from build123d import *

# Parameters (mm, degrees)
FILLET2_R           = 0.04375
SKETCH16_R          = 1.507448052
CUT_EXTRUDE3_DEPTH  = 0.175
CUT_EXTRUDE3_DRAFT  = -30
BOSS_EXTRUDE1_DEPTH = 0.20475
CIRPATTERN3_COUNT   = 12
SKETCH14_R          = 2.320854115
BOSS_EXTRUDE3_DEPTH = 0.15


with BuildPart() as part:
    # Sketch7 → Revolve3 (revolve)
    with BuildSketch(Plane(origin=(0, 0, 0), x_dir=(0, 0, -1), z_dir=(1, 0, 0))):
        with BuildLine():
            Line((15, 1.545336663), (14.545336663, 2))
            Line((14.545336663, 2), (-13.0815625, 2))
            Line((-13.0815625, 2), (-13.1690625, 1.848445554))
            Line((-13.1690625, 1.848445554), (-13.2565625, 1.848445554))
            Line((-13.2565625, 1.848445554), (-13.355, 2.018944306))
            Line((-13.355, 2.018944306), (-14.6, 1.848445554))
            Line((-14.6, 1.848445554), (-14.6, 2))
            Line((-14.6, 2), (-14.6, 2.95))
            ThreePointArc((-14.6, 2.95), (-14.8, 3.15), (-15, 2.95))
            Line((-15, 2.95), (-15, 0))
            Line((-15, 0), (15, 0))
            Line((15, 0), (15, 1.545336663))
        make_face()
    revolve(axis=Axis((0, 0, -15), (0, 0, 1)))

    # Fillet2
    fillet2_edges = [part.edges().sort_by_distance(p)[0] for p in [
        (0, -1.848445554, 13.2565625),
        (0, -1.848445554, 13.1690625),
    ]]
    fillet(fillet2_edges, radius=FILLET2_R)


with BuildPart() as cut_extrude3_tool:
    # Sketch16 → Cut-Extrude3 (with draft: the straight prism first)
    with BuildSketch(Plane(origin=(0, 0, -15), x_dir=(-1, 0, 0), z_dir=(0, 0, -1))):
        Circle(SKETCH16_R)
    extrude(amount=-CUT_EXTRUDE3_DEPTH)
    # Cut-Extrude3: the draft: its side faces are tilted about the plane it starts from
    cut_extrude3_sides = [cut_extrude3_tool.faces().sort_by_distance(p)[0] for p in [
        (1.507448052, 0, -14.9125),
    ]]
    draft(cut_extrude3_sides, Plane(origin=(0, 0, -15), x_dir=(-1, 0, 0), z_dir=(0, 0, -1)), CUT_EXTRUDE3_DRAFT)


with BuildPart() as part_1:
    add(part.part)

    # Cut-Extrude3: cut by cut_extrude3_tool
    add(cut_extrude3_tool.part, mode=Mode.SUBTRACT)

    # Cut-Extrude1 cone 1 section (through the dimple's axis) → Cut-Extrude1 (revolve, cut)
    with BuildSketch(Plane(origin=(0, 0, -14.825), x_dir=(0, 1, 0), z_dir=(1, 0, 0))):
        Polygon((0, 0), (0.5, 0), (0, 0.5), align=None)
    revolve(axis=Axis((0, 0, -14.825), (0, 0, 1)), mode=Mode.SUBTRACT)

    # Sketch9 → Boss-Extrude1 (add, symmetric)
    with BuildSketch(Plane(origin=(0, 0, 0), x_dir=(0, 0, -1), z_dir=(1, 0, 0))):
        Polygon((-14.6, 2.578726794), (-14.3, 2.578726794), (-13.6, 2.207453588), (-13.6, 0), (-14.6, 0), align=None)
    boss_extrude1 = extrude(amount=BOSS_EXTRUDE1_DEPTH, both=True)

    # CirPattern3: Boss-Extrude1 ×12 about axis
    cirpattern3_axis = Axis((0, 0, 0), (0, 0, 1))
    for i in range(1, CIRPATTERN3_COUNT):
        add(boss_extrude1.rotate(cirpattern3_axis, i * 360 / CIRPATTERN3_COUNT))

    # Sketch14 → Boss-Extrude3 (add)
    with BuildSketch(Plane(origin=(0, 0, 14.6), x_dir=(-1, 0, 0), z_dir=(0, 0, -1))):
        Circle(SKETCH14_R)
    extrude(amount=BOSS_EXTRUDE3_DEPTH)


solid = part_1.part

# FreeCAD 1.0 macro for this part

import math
import FreeCAD as App
import Part
import Sketcher
Q = App.Units.Quantity


def edges_at(feature, points):
    """Names of the edges that pass closest to the given points."""
    edges = feature.Shape.Edges
    near = lambda p: min(range(len(edges)), key=lambda i: edges[i].distToShape(Part.Vertex(*p))[0])
    return sorted({f"Edge{near(p) + 1}" for p in points})


def faces_at(feature, points):
    """Names of the faces that lie closest to the given points."""
    faces = feature.Shape.Faces
    near = lambda p: min(range(len(faces)), key=lambda i: faces[i].distToShape(Part.Vertex(*p))[0])
    return sorted({f"Face{near(p) + 1}" for p in points})

doc = App.newDocument("Part")
body = doc.addObject("PartDesign::Body", "Body")

# Sketch on YZ plane
sketch1 = doc.addObject("Sketcher::SketchObject", "Sketch")
body.addObject(sketch1)
sketch1.AttachmentSupport = (doc.YZ_Plane, [""])
sketch1.MapMode = "FlatFace"
sketch1.addGeometry([
    Part.LineSegment(App.Vector(1.55, -15, 0), App.Vector(2, -14.55, 0)),  # 0
    Part.LineSegment(App.Vector(2, -14.55, 0), App.Vector(2, 13.08, 0)),  # 1
    Part.LineSegment(App.Vector(2, 13.08, 0), App.Vector(1.85, 13.17, 0)),  # 2
    Part.LineSegment(App.Vector(1.85, 13.17, 0), App.Vector(1.85, 13.26, 0)),  # 3
    Part.LineSegment(App.Vector(1.85, 13.26, 0), App.Vector(2.02, 13.36, 0)),  # 4
    Part.LineSegment(App.Vector(2.02, 13.36, 0), App.Vector(1.85, 14.6, 0)),  # 5
    Part.LineSegment(App.Vector(1.85, 14.6, 0), App.Vector(2.95, 14.6, 0)),  # 6
    Part.ArcOfCircle(Part.Circle(App.Vector(2.95, 14.8, 0), App.Vector(0, 0, 1), 0.2), math.radians(-90), math.radians(90)),  # 7
    Part.LineSegment(App.Vector(2.95, 15, 0), App.Vector(0, 15, 0)),  # 8
    Part.LineSegment(App.Vector(0, 15, 0), App.Vector(0, -15, 0)),  # 9
    Part.LineSegment(App.Vector(0, -15, 0), App.Vector(1.55, -15, 0)),  # 10
], False)
sketch1.addConstraint([
    Sketcher.Constraint("Coincident", 0, 2, 1, 1),
    Sketcher.Constraint("Coincident", 1, 2, 2, 1),
    Sketcher.Constraint("Coincident", 2, 2, 3, 1),
    Sketcher.Constraint("Coincident", 3, 2, 4, 1),
    Sketcher.Constraint("Coincident", 4, 2, 5, 1),
    Sketcher.Constraint("Coincident", 5, 2, 6, 1),
    Sketcher.Constraint("Tangent", 6, 2, 7, 1),
    Sketcher.Constraint("Tangent", 7, 2, 8, 1),
    Sketcher.Constraint("Coincident", 8, 2, 9, 1),
    Sketcher.Constraint("Coincident", 9, 2, 10, 1),
    Sketcher.Constraint("Coincident", 10, 2, 0, 1),
    Sketcher.Constraint("Vertical", 1),
    Sketcher.Constraint("Vertical", 3),
    Sketcher.Constraint("Horizontal", 6),
    Sketcher.Constraint("Horizontal", 8),
    Sketcher.Constraint("Vertical", 9),
    Sketcher.Constraint("Horizontal", 10),
    Sketcher.Constraint("Symmetric", 8, 2, 9, 2, -1, 1),
    Sketcher.Constraint("Vertical", 3, 2, 5, 2),
    Sketcher.Constraint("Radius", 7, 0.2),
    Sketcher.Constraint("DistanceY", 9, 2, 9, 1, 30.0),
    Sketcher.Constraint("Angle", 0, Q("45 deg")),
    Sketcher.Constraint("Angle", 2, Q("150 deg")),
    Sketcher.Constraint("Angle", 4, Q("30 deg")),
    Sketcher.Constraint("DistanceX", -1, 1, 0, 2, 2.0),
    Sketcher.Constraint("DistanceX", 8, 2, 8, 1, 2.95),
    Sketcher.Constraint("Distance", 2, 0.175),
    Sketcher.Constraint("DistanceY", 1, 1, 1, 2, 27.626899),
    Sketcher.Constraint("DistanceY", 3, 1, 3, 2, 0.0875),
    Sketcher.Constraint("DistanceY", -1, 1, 4, 2, 13.355),
    Sketcher.Constraint("DistanceX", 3, 2, 4, 2, 0.170499),
])
revolution = doc.addObject("PartDesign::Revolution", "Revolution")
body.addObject(revolution)
revolution.Profile = sketch1
revolution.ReferenceAxis = (sketch1, ["V_Axis"])
revolution.Angle = 360
doc.recompute()

fillet = doc.addObject("PartDesign::Fillet", "Fillet")
body.addObject(fillet)
fillet.Base = (revolution, edges_at(revolution, [(0, -1.848, 13.257), (0, -1.848, 13.169)]))
fillet.Radius = 0.04375
body2 = doc.addObject("PartDesign::Body", "Body001")

# Sketch on XY plane
sketch2 = doc.addObject("Sketcher::SketchObject", "Sketch001")
body2.addObject(sketch2)
sketch2.AttachmentSupport = (doc.getObject("XY_Plane001"), [""])
sketch2.MapMode = "FlatFace"
sketch2.AttachmentOffset = App.Placement(App.Vector(0, 0, -15), App.Rotation())
sketch2.addGeometry(Part.Circle(App.Vector(0, 0, 0), App.Vector(0, 0, 1), 1.5), False)
sketch2.addConstraint([
    Sketcher.Constraint("Coincident", 0, 3, -1, 1),
    Sketcher.Constraint("Diameter", 0, 3.014896),
])
pad1 = doc.addObject("PartDesign::Pad", "Pad")
body2.addObject(pad1)
pad1.Profile = sketch2
pad1.Length = 0.175
doc.recompute()

datumplane = doc.addObject("PartDesign::Plane", "DatumPlane")
body2.addObject(datumplane)
datumplane.AttachmentSupport = (doc.getObject("XY_Plane001"), [""])
datumplane.MapMode = "FlatFace"
datumplane.AttachmentOffset = App.Placement(App.Vector(0, 0, -15), App.Rotation())
draft = doc.addObject("PartDesign::Draft", "Draft")
body2.addObject(draft)
draft.Base = (pad1, faces_at(pad1, [(1.507, 0, -14.912)]))
draft.NeutralPlane = (datumplane, [""])
draft.Angle = 30
draft.Reversed = False
doc.recompute()

boolean = doc.addObject("PartDesign::Boolean", "Boolean")
body.addObject(boolean)
boolean.Type = "Cut"
boolean.addObjects([body2])

# Sketch on YZ plane
sketch3 = doc.addObject("Sketcher::SketchObject", "Sketch002")
body.addObject(sketch3)
sketch3.AttachmentSupport = (doc.YZ_Plane, [""])
sketch3.MapMode = "FlatFace"
sketch3.addGeometry([
    Part.LineSegment(App.Vector(0, -14.8, 0), App.Vector(0.5, -14.8, 0)),
    Part.LineSegment(App.Vector(0.5, -14.8, 0), App.Vector(0, -14.3, 0)),
    Part.LineSegment(App.Vector(0, -14.3, 0), App.Vector(0, -14.8, 0)),
], False)
sketch3.addConstraint([
    Sketcher.Constraint("Coincident", 0, 2, 1, 1),
    Sketcher.Constraint("Coincident", 1, 2, 2, 1),
    Sketcher.Constraint("Coincident", 2, 2, 0, 1),
    Sketcher.Constraint("Horizontal", 0),
    Sketcher.Constraint("Vertical", 2),
    Sketcher.Constraint("PointOnObject", 1, 2, -2),
    Sketcher.Constraint("Equal", 0, 2),
    Sketcher.Constraint("DistanceX", 0, 1, 0, 2, 0.5),
    Sketcher.Constraint("DistanceY", 0, 2, -1, 1, 14.825),
])
groove = doc.addObject("PartDesign::Groove", "Groove")
body.addObject(groove)
groove.Profile = sketch3
groove.ReferenceAxis = (sketch3, ["V_Axis"])
groove.Angle = 360

# Sketch on YZ plane
sketch4 = doc.addObject("Sketcher::SketchObject", "Sketch003")
body.addObject(sketch4)
sketch4.AttachmentSupport = (doc.YZ_Plane, [""])
sketch4.MapMode = "FlatFace"
sketch4.addGeometry([
    Part.LineSegment(App.Vector(2.58, 14.3, 0), App.Vector(2.58, 14.6, 0)),  # 0
    Part.LineSegment(App.Vector(2.58, 14.6, 0), App.Vector(0, 14.6, 0)),  # 1
    Part.LineSegment(App.Vector(0, 14.6, 0), App.Vector(0, 13.6, 0)),  # 2
    Part.LineSegment(App.Vector(0, 13.6, 0), App.Vector(2.21, 13.6, 0)),  # 3
    Part.LineSegment(App.Vector(2.21, 13.6, 0), App.Vector(2.58, 14.3, 0)),  # 4
], False)
sketch4.addConstraint([
    Sketcher.Constraint("Coincident", 0, 2, 1, 1),
    Sketcher.Constraint("Coincident", 1, 2, 2, 1),
    Sketcher.Constraint("Coincident", 2, 2, 3, 1),
    Sketcher.Constraint("Coincident", 3, 2, 4, 1),
    Sketcher.Constraint("Coincident", 4, 2, 0, 1),
    Sketcher.Constraint("Vertical", 0),
    Sketcher.Constraint("Horizontal", 1),
    Sketcher.Constraint("Vertical", 2),
    Sketcher.Constraint("Horizontal", 3),
    Sketcher.Constraint("PointOnObject", 1, 2, -2),
    Sketcher.Constraint("DistanceY", 2, 2, 2, 1, 1.0),
    Sketcher.Constraint("DistanceY", 0, 1, 0, 2, 0.3),
    Sketcher.Constraint("DistanceY", -1, 1, 0, 2, 14.6),
    Sketcher.Constraint("DistanceX", 1, 2, 1, 1, 2.578727),
    Sketcher.Constraint("DistanceX", 3, 1, 3, 2, 2.207454),
])
pad2 = doc.addObject("PartDesign::Pad", "Pad001")
body.addObject(pad2)
pad2.Profile = sketch4
pad2.Length = 0.4095
pad2.Midplane = True
doc.recompute()

polarpattern = doc.addObject("PartDesign::PolarPattern", "PolarPattern")
body.addObject(polarpattern)
polarpattern.Originals = [pad2]
polarpattern.Axis = (doc.Z_Axis, [""])
polarpattern.Angle = 360
polarpattern.Occurrences = 12
body.Tip = polarpattern

# Sketch on XY plane
sketch5 = doc.addObject("Sketcher::SketchObject", "Sketch004")
body.addObject(sketch5)
sketch5.AttachmentSupport = (doc.XY_Plane, [""])
sketch5.MapMode = "FlatFace"
sketch5.AttachmentOffset = App.Placement(App.Vector(0, 0, 14.6), App.Rotation())
sketch5.addGeometry(Part.Circle(App.Vector(0, 0, 0), App.Vector(0, 0, 1), 2.3), False)
sketch5.addConstraint([
    Sketcher.Constraint("Coincident", 0, 3, -1, 1),
    Sketcher.Constraint("Diameter", 0, 4.641708),
])
pad3 = doc.addObject("PartDesign::Pad", "Pad002")
body.addObject(pad3)
pad3.Profile = sketch5
pad3.Length = 0.15
pad3.Reversed = True

doc.recompute()
